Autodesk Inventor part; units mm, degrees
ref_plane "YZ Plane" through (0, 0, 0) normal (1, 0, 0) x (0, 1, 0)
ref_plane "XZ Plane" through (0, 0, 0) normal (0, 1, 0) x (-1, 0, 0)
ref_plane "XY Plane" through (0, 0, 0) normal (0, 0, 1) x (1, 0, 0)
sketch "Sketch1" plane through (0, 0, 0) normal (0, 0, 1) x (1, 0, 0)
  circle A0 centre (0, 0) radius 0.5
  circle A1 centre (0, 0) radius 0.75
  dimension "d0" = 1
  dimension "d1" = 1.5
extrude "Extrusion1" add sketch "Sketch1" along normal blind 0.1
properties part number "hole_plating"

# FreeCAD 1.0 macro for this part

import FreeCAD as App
import Part
import Sketcher

V = App.Vector
Q = App.Units.Quantity

doc = App.newDocument("Part")
body = doc.addObject("PartDesign::Body", "Body")

sketch1 = body.newObject("Sketcher::SketchObject", "Sketch")
sketch1.AttachmentSupport = (doc.getObject("XY_Plane"), [""])
sketch1.MapMode = "FlatFace"
sketch1.addGeometry([
    Part.Circle(V(0, 0, 0), V(0, 0, 1), 0.8),
    Part.Circle(V(0, 0, 0), V(0, 0, 1), 0.5),
], False)
sketch1.addConstraint([
    Sketcher.Constraint("Coincident", 0, 3, -1, 1),
    Sketcher.Constraint("Coincident", 1, 3, -1, 1),
    Sketcher.Constraint("Diameter", 1, Q("1 mm")),
    Sketcher.Constraint("Diameter", 0, Q("1.5 mm")),
])
pad1 = body.newObject("PartDesign::Pad", "Pad")
pad1.Profile = sketch1
pad1.Length = 0.1

doc.recompute()
